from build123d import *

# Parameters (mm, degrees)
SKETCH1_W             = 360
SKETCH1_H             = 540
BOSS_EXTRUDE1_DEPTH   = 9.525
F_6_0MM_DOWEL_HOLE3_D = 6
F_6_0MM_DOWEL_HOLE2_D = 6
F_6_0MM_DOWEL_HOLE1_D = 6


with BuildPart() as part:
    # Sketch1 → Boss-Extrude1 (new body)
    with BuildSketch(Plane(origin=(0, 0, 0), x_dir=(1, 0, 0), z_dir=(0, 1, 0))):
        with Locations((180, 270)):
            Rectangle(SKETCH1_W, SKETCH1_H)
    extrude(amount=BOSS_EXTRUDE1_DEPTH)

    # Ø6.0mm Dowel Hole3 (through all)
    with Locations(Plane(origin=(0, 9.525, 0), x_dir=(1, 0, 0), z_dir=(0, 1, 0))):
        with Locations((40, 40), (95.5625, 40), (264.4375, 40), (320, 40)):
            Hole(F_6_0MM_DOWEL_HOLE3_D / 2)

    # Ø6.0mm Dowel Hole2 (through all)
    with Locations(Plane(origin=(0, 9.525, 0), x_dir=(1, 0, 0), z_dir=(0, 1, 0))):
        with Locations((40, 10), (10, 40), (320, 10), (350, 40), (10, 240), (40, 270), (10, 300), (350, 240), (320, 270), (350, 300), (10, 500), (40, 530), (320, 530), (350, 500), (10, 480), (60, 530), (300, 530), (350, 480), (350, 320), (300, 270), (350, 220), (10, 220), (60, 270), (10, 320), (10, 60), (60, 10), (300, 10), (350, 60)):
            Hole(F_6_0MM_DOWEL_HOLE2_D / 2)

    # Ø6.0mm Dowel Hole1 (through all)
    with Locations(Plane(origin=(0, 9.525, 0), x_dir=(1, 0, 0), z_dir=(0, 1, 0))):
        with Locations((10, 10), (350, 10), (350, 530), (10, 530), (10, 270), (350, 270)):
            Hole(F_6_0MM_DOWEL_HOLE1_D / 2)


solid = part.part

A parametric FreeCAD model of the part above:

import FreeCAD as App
import Part
import Sketcher
from FreeCAD import Vector
Q = App.Units.Quantity

doc = App.newDocument("Part")
params = doc.addObject("Spreadsheet::Sheet", "Params")
for row, (alias, value) in enumerate([
    ("sketch1_width", "360 mm"),
    ("sketch1_height", "540 mm"),
    ("pad1_length", "9.525 mm"),
    ("sketch2_diameter", "6 mm"),
    ("hole_diameter", "6 mm"),
    ("sketch3_diameter", "6 mm"),
    ("hole2_diameter", "6 mm"),
    ("sketch4_diameter", "6 mm"),
    ("hole3_diameter", "6 mm"),
], start=1):
    params.set(f"A{row}", alias)
    params.set(f"B{row}", "=" + value)
    params.setAlias(f"B{row}", alias)

body = doc.addObject("PartDesign::Body", "Body")

# Sketch on XZ plane
sketch1 = body.newObject("Sketcher::SketchObject", "Sketch")
sketch1.AttachmentSupport = (doc.getObject("XZ_Plane"), [""])
sketch1.MapMode = "FlatFace"
sketch1.addGeometry([
    Part.LineSegment(Vector(0, -540, 0), Vector(0, 0, 0)),
    Part.LineSegment(Vector(0, 0, 0), Vector(360, 0, 0)),
    Part.LineSegment(Vector(360, 0, 0), Vector(360, -540, 0)),
    Part.LineSegment(Vector(360, -540, 0), Vector(0, -540, 0)),
], False)
sketch1.addConstraint([
    Sketcher.Constraint("Coincident", 0, 2, 1, 1),
    Sketcher.Constraint("Coincident", 1, 2, 2, 1),
    Sketcher.Constraint("Coincident", 2, 2, 3, 1),
    Sketcher.Constraint("Coincident", 3, 2, 0, 1),
    Sketcher.Constraint("Vertical", 0),
    Sketcher.Constraint("Horizontal", 1),
    Sketcher.Constraint("Vertical", 2),
    Sketcher.Constraint("Horizontal", 3),
    Sketcher.Constraint("Coincident", 0, 2, -1, 1),
    Sketcher.Constraint("DistanceX", 1, 1, 1, 2, Q("360 mm")),
    Sketcher.Constraint("DistanceY", 0, 1, 0, 2, Q("540 mm")),
])
sketch1.setExpression("Constraints[9]", "Params.sketch1_width")
sketch1.setExpression("Constraints[10]", "Params.sketch1_height")
pad1 = body.newObject("PartDesign::Pad", "Pad")
pad1.Profile = sketch1
pad1.setExpression("Length", "Params.pad1_length")
pad1.Reversed = True

# Sketch on XZ plane
sketch2 = body.newObject("Sketcher::SketchObject", "Sketch001")
sketch2.AttachmentSupport = (doc.getObject("XZ_Plane"), [""])
sketch2.MapMode = "FlatFace"
sketch2.AttachmentOffset = App.Placement(Vector(0, 0, -9.525), App.Rotation())
sketch2.addGeometry([
    Part.Circle(Vector(40, -40, 0), Vector(0, 0, 1), 3),
    Part.Circle(Vector(95.6, -40, 0), Vector(0, 0, 1), 3),
    Part.Circle(Vector(264.4, -40, 0), Vector(0, 0, 1), 3),
    Part.Circle(Vector(320, -40, 0), Vector(0, 0, 1), 3),
], False)
sketch2.addConstraint([
    Sketcher.Constraint("Equal", 0, 1),
    Sketcher.Constraint("Equal", 1, 2),
    Sketcher.Constraint("Equal", 2, 3),
    Sketcher.Constraint("Horizontal", 0, 3, 1, 3),
    Sketcher.Constraint("Horizontal", 1, 3, 2, 3),
    Sketcher.Constraint("Horizontal", 2, 3, 3, 3),
    Sketcher.Constraint("Diameter", 0, Q("6 mm")),
    Sketcher.Constraint("DistanceX", -1, 1, 0, 3, Q("40 mm")),
    Sketcher.Constraint("DistanceY", 0, 3, -1, 1, Q("40 mm")),
    Sketcher.Constraint("DistanceX", -1, 1, 3, 3, Q("320 mm")),
    Sketcher.Constraint("DistanceX", 1, 3, 2, 3, Q("168.875 mm")),
    Sketcher.Constraint("DistanceX", -1, 1, 1, 3, Q("95.5625 mm")),
])
sketch2.setExpression("Constraints[6]", "Params.sketch2_diameter")
doc.recompute()
hole = body.newObject("PartDesign::Hole", "Hole")
hole.Profile = sketch2
hole.ThreadType = "None"
hole.setExpression("Diameter", "Params.hole_diameter")
hole.DepthType = "ThroughAll"
hole.Reversed = True

# Sketch on XZ plane
sketch3 = body.newObject("Sketcher::SketchObject", "Sketch002")
sketch3.AttachmentSupport = (doc.getObject("XZ_Plane"), [""])
sketch3.MapMode = "FlatFace"
sketch3.AttachmentOffset = App.Placement(Vector(0, 0, -9.525), App.Rotation())
sketch3.addGeometry([
    Part.Circle(Vector(40, -10, 0), Vector(0, 0, 1), 3),  # 0
    Part.Circle(Vector(10, -40, 0), Vector(0, 0, 1), 3),  # 1
    Part.Circle(Vector(320, -10, 0), Vector(0, 0, 1), 3),  # 2
    Part.Circle(Vector(350, -40, 0), Vector(0, 0, 1), 3),  # 3
    Part.Circle(Vector(10, -240, 0), Vector(0, 0, 1), 3),  # 4
    Part.Circle(Vector(40, -270, 0), Vector(0, 0, 1), 3),  # 5
    Part.Circle(Vector(10, -300, 0), Vector(0, 0, 1), 3),  # 6
    Part.Circle(Vector(350, -240, 0), Vector(0, 0, 1), 3),  # 7
    Part.Circle(Vector(320, -270, 0), Vector(0, 0, 1), 3),  # 8
    Part.Circle(Vector(350, -300, 0), Vector(0, 0, 1), 3),  # 9
    Part.Circle(Vector(10, -500, 0), Vector(0, 0, 1), 3),  # 10
    Part.Circle(Vector(40, -530, 0), Vector(0, 0, 1), 3),  # 11
    Part.Circle(Vector(320, -530, 0), Vector(0, 0, 1), 3),  # 12
    Part.Circle(Vector(350, -500, 0), Vector(0, 0, 1), 3),  # 13
    Part.Circle(Vector(10, -480, 0), Vector(0, 0, 1), 3),  # 14
    Part.Circle(Vector(60, -530, 0), Vector(0, 0, 1), 3),  # 15
    Part.Circle(Vector(300, -530, 0), Vector(0, 0, 1), 3),  # 16
    Part.Circle(Vector(350, -480, 0), Vector(0, 0, 1), 3),  # 17
    Part.Circle(Vector(350, -320, 0), Vector(0, 0, 1), 3),  # 18
    Part.Circle(Vector(300, -270, 0), Vector(0, 0, 1), 3),  # 19
    Part.Circle(Vector(350, -220, 0), Vector(0, 0, 1), 3),  # 20
    Part.Circle(Vector(10, -220, 0), Vector(0, 0, 1), 3),  # 21
    Part.Circle(Vector(60, -270, 0), Vector(0, 0, 1), 3),  # 22
    Part.Circle(Vector(10, -320, 0), Vector(0, 0, 1), 3),  # 23
    Part.Circle(Vector(10, -60, 0), Vector(0, 0, 1), 3),  # 24
    Part.Circle(Vector(60, -10, 0), Vector(0, 0, 1), 3),  # 25
    Part.Circle(Vector(300, -10, 0), Vector(0, 0, 1), 3),  # 26
    Part.Circle(Vector(350, -60, 0), Vector(0, 0, 1), 3),  # 27
], False)
sketch3.addConstraint([
    Sketcher.Constraint("Equal", 0, 1),
    Sketcher.Constraint("Equal", 1, 2),
    Sketcher.Constraint("Equal", 2, 3),
    Sketcher.Constraint("Equal", 3, 4),
    Sketcher.Constraint("Equal", 4, 5),
    Sketcher.Constraint("Equal", 5, 6),
    Sketcher.Constraint("Equal", 6, 7),
    Sketcher.Constraint("Equal", 7, 8),
    Sketcher.Constraint("Equal", 8, 9),
    Sketcher.Constraint("Equal", 9, 10),
    Sketcher.Constraint("Equal", 10, 11),
    Sketcher.Constraint("Equal", 11, 12),
    Sketcher.Constraint("Equal", 12, 13),
    Sketcher.Constraint("Equal", 13, 14),
    Sketcher.Constraint("Equal", 14, 15),
    Sketcher.Constraint("Equal", 15, 16),
    Sketcher.Constraint("Equal", 16, 17),
    Sketcher.Constraint("Equal", 17, 18),
    Sketcher.Constraint("Equal", 18, 19),
    Sketcher.Constraint("Equal", 19, 20),
    Sketcher.Constraint("Equal", 20, 21),
    Sketcher.Constraint("Equal", 21, 22),
    Sketcher.Constraint("Equal", 22, 23),
    Sketcher.Constraint("Equal", 23, 24),
    Sketcher.Constraint("Equal", 24, 25),
    Sketcher.Constraint("Equal", 25, 26),
    Sketcher.Constraint("Equal", 26, 27),
    Sketcher.Constraint("Horizontal", 0, 3, 2, 3),
    Sketcher.Constraint("Horizontal", 1, 3, 3, 3),
    Sketcher.Constraint("Horizontal", 4, 3, 7, 3),
    Sketcher.Constraint("Horizontal", 5, 3, 8, 3),
    Sketcher.Constraint("Horizontal", 6, 3, 9, 3),
    Sketcher.Constraint("Horizontal", 11, 3, 12, 3),
    Sketcher.Constraint("Horizontal", 10, 3, 13, 3),
    Sketcher.Constraint("Horizontal", 12, 3, 15, 3),
    Sketcher.Constraint("Horizontal", 15, 3, 16, 3),
    Sketcher.Constraint("Horizontal", 14, 3, 17, 3),
    Sketcher.Constraint("Horizontal", 8, 3, 19, 3),
    Sketcher.Constraint("Horizontal", 20, 3, 21, 3),
    Sketcher.Constraint("Horizontal", 19, 3, 22, 3),
    Sketcher.Constraint("Horizontal", 18, 3, 23, 3),
    Sketcher.Constraint("Horizontal", 2, 3, 25, 3),
    Sketcher.Constraint("Horizontal", 25, 3, 26, 3),
    Sketcher.Constraint("Horizontal", 24, 3, 27, 3),
    Sketcher.Constraint("Vertical", 1, 3, 4, 3),
    Sketcher.Constraint("Vertical", 0, 3, 5, 3),
    Sketcher.Constraint("Vertical", 4, 3, 6, 3),
    Sketcher.Constraint("Vertical", 3, 3, 7, 3),
    Sketcher.Constraint("Vertical", 2, 3, 8, 3),
    Sketcher.Constraint("Vertical", 7, 3, 9, 3),
    Sketcher.Constraint("Vertical", 6, 3, 10, 3),
    Sketcher.Constraint("Vertical", 5, 3, 11, 3),
    Sketcher.Constraint("Vertical", 8, 3, 12, 3),
    Sketcher.Constraint("Vertical", 9, 3, 13, 3),
    Sketcher.Constraint("Vertical", 10, 3, 14, 3),
    Sketcher.Constraint("Vertical", 13, 3, 17, 3),
    Sketcher.Constraint("Vertical", 17, 3, 18, 3),
    Sketcher.Constraint("Vertical", 16, 3, 19, 3),
    Sketcher.Constraint("Vertical", 18, 3, 20, 3),
    Sketcher.Constraint("Vertical", 14, 3, 21, 3),
    Sketcher.Constraint("Vertical", 15, 3, 22, 3),
    Sketcher.Constraint("Vertical", 21, 3, 23, 3),
    Sketcher.Constraint("Vertical", 23, 3, 24, 3),
    Sketcher.Constraint("Vertical", 22, 3, 25, 3),
    Sketcher.Constraint("Vertical", 19, 3, 26, 3),
    Sketcher.Constraint("Vertical", 20, 3, 27, 3),
    Sketcher.Constraint("Diameter", 0, Q("6 mm")),
    Sketcher.Constraint("DistanceX", -1, 1, 0, 3, Q("40 mm")),
    Sketcher.Constraint("DistanceY", 0, 3, -1, 1, Q("10 mm")),
    Sketcher.Constraint("DistanceX", -1, 1, 1, 3, Q("10 mm")),
    Sketcher.Constraint("DistanceY", 1, 3, -1, 1, Q("40 mm")),
    Sketcher.Constraint("DistanceX", -1, 1, 2, 3, Q("320 mm")),
    Sketcher.Constraint("DistanceX", -1, 1, 3, 3, Q("350 mm")),
    Sketcher.Constraint("DistanceY", 4, 3, -1, 1, Q("240 mm")),
    Sketcher.Constraint("DistanceY", 5, 3, -1, 1, Q("270 mm")),
    Sketcher.Constraint("DistanceY", 6, 3, -1, 1, Q("300 mm")),
    Sketcher.Constraint("DistanceY", 10, 3, -1, 1, Q("500 mm")),
    Sketcher.Constraint("DistanceY", 11, 3, -1, 1, Q("530 mm")),
    Sketcher.Constraint("DistanceY", 14, 3, -1, 1, Q("480 mm")),
    Sketcher.Constraint("DistanceX", -1, 1, 15, 3, Q("60 mm")),
    Sketcher.Constraint("DistanceX", -1, 1, 16, 3, Q("300 mm")),
    Sketcher.Constraint("DistanceY", 18, 3, -1, 1, Q("320 mm")),
    Sketcher.Constraint("DistanceY", 20, 3, -1, 1, Q("220 mm")),
    Sketcher.Constraint("DistanceY", 24, 3, -1, 1, Q("60 mm")),
])
sketch3.setExpression("Constraints[66]", "Params.sketch3_diameter")
doc.recompute()
hole2 = body.newObject("PartDesign::Hole", "Hole001")
hole2.Profile = sketch3
hole2.ThreadType = "None"
hole2.setExpression("Diameter", "Params.hole2_diameter")
hole2.DepthType = "ThroughAll"
hole2.Reversed = True

# Sketch on XZ plane
sketch4 = body.newObject("Sketcher::SketchObject", "Sketch003")
sketch4.AttachmentSupport = (doc.getObject("XZ_Plane"), [""])
sketch4.MapMode = "FlatFace"
sketch4.AttachmentOffset = App.Placement(Vector(0, 0, -9.525), App.Rotation())
sketch4.addGeometry([
    Part.Circle(Vector(10, -10, 0), Vector(0, 0, 1), 3),  # 0
    Part.Circle(Vector(350, -10, 0), Vector(0, 0, 1), 3),  # 1
    Part.Circle(Vector(350, -530, 0), Vector(0, 0, 1), 3),  # 2
    Part.Circle(Vector(10, -530, 0), Vector(0, 0, 1), 3),  # 3
    Part.Circle(Vector(10, -270, 0), Vector(0, 0, 1), 3),  # 4
    Part.Circle(Vector(350, -270, 0), Vector(0, 0, 1), 3),  # 5
], False)
sketch4.addConstraint([
    Sketcher.Constraint("Equal", 0, 1),
    Sketcher.Constraint("Equal", 1, 2),
    Sketcher.Constraint("Equal", 2, 3),
    Sketcher.Constraint("Equal", 3, 4),
    Sketcher.Constraint("Equal", 4, 5),
    Sketcher.Constraint("Horizontal", 0, 3, 1, 3),
    Sketcher.Constraint("Horizontal", 2, 3, 3, 3),
    Sketcher.Constraint("Horizontal", 4, 3, 5, 3),
    Sketcher.Constraint("Vertical", 1, 3, 2, 3),
    Sketcher.Constraint("Vertical", 0, 3, 3, 3),
    Sketcher.Constraint("Vertical", 3, 3, 4, 3),
    Sketcher.Constraint("Vertical", 2, 3, 5, 3),
    Sketcher.Constraint("Diameter", 0, Q("6 mm")),
    Sketcher.Constraint("DistanceX", -1, 1, 0, 3, Q("10 mm")),
    Sketcher.Constraint("DistanceY", 0, 3, -1, 1, Q("10 mm")),
    Sketcher.Constraint("DistanceX", -1, 1, 1, 3, Q("350 mm")),
    Sketcher.Constraint("DistanceY", 2, 3, -1, 1, Q("530 mm")),
    Sketcher.Constraint("DistanceY", 4, 3, -1, 1, Q("270 mm")),
])
sketch4.setExpression("Constraints[12]", "Params.sketch4_diameter")
doc.recompute()
hole3 = body.newObject("PartDesign::Hole", "Hole002")
hole3.Profile = sketch4
hole3.ThreadType = "None"
hole3.setExpression("Diameter", "Params.hole3_diameter")
hole3.DepthType = "ThroughAll"
hole3.Reversed = True

doc.recompute()
